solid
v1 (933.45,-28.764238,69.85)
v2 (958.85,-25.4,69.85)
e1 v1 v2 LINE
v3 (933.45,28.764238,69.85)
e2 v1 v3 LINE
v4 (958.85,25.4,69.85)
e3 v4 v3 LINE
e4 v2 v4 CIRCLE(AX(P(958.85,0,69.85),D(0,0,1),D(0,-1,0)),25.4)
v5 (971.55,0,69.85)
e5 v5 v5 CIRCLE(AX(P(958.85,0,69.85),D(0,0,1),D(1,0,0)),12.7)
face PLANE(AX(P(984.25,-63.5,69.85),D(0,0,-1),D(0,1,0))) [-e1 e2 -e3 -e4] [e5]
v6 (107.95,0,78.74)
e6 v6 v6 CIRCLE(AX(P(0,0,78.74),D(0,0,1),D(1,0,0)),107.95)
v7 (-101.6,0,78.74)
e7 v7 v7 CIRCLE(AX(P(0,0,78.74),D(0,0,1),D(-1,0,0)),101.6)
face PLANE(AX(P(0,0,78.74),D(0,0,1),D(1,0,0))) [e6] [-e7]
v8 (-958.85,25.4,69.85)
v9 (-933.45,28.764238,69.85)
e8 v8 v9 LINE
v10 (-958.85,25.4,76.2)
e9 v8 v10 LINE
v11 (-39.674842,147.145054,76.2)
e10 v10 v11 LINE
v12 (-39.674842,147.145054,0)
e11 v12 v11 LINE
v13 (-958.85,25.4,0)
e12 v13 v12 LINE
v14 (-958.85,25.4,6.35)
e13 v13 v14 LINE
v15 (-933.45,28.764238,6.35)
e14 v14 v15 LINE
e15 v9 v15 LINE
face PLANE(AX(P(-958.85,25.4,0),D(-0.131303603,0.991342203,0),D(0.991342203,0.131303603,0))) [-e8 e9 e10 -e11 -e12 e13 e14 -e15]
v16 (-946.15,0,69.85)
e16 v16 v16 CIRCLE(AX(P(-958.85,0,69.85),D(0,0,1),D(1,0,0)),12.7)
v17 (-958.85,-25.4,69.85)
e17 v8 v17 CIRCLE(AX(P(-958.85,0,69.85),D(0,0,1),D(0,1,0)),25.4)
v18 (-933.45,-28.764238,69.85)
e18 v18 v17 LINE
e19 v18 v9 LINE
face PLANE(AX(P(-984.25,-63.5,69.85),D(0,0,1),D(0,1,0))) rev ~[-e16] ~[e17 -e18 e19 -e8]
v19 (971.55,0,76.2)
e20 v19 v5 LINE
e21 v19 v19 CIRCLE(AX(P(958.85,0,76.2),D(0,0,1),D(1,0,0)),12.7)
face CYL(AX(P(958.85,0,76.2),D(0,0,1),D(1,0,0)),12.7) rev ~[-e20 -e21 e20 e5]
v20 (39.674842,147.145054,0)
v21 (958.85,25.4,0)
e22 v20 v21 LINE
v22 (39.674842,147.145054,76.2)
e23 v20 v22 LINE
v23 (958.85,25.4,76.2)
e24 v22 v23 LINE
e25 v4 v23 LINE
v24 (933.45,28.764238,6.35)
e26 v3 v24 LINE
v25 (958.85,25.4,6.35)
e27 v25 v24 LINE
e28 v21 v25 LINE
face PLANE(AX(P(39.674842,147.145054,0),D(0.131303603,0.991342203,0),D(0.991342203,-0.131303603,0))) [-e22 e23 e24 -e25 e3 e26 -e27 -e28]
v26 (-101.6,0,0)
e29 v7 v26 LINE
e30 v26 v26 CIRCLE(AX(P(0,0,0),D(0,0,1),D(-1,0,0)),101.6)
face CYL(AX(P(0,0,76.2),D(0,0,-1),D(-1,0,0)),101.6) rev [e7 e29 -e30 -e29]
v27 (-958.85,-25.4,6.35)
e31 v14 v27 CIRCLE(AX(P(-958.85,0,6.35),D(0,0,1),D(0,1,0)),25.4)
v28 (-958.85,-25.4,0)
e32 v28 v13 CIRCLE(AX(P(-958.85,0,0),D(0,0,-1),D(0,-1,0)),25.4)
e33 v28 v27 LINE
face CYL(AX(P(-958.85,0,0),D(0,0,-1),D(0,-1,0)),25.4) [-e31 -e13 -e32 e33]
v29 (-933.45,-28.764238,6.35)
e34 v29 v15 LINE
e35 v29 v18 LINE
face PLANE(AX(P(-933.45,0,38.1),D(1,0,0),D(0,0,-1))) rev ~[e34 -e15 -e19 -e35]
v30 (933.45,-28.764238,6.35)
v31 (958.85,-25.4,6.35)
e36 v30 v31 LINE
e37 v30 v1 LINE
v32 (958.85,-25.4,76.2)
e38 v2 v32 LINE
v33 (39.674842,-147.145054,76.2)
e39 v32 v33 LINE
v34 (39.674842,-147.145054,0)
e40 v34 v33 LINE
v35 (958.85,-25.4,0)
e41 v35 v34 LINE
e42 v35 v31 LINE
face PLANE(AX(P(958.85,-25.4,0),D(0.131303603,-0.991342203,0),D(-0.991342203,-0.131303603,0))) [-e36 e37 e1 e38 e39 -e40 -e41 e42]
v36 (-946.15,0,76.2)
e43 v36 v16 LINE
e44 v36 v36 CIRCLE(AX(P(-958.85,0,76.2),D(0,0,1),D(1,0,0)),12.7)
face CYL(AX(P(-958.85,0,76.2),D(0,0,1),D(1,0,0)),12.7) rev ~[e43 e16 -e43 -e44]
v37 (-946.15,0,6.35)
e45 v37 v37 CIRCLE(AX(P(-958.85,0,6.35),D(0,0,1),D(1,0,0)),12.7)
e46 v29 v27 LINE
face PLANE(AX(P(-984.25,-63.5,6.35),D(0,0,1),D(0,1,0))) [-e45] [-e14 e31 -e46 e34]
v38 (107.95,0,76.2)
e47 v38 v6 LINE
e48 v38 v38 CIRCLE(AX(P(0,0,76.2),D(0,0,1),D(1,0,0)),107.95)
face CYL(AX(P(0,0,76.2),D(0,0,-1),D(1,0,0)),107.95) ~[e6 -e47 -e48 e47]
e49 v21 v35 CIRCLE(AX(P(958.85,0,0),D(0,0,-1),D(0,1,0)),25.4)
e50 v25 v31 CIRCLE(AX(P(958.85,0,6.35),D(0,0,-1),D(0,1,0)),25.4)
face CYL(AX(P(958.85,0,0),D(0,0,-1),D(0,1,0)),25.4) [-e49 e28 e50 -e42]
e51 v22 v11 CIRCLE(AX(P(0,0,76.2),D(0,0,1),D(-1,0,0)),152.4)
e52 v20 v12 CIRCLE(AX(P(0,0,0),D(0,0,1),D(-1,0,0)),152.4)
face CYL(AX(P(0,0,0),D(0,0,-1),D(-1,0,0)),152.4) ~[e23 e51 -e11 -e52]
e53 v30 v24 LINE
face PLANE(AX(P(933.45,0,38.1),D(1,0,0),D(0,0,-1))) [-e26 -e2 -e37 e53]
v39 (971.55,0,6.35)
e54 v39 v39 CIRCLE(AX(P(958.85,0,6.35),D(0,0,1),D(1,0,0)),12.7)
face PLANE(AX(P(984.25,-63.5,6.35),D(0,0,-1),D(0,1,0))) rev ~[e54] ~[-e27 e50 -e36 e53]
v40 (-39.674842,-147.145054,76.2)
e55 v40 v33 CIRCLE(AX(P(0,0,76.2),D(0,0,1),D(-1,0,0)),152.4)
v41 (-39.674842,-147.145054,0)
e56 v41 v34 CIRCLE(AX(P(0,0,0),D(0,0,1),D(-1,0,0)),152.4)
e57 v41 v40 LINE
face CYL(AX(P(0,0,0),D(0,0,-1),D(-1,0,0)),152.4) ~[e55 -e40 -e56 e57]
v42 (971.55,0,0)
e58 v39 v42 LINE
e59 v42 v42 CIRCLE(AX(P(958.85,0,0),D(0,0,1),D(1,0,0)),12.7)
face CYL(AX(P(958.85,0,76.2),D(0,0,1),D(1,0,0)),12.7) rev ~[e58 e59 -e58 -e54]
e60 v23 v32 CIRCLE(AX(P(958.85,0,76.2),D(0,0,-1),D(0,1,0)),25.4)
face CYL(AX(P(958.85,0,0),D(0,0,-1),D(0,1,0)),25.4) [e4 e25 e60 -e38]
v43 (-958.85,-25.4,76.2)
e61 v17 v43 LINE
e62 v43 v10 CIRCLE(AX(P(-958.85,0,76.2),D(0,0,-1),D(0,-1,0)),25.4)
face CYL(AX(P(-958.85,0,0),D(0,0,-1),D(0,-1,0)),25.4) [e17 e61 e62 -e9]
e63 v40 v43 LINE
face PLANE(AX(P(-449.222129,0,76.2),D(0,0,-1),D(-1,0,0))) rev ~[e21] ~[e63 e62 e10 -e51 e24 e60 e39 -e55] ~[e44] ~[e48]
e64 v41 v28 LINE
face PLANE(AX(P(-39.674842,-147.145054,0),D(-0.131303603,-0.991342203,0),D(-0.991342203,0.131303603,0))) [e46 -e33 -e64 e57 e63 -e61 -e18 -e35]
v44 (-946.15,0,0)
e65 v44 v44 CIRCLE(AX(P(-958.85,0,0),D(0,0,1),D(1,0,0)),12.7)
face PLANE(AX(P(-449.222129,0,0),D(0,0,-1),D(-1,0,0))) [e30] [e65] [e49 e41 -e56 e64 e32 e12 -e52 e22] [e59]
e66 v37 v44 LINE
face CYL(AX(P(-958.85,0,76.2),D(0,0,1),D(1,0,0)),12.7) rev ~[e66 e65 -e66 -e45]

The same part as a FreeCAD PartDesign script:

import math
import FreeCAD as App
import Part
import Sketcher

V = App.Vector
Q = App.Units.Quantity


def add_polygon(sketch, points):
    """Adds a closed chain of lines whose ends are joined by coincident constraints."""
    first, n = sketch.GeometryCount, len(points)
    for a, b in zip(points, points[1:] + points[:1]):
        sketch.addGeometry(Part.LineSegment(App.Vector(*a, 0), App.Vector(*b, 0)), False)
    for i in range(n):
        sketch.addConstraint(Sketcher.Constraint("Coincident", first + i, 2, first + (i + 1) % n, 1))

doc = App.newDocument("Part")
params = doc.addObject("Spreadsheet::Sheet", "Params")
for row, (alias, value) in enumerate([
    ("sketch1_diameter", "12 in"),
    ("sketch1_diameter2", "8 in"),
    ("pad1_length", "3 in"),
    ("sketch2_radius", "1 in"),
    ("sketch2_radius2", "6 in"),
    ("pad2_length", "3 in"),
    ("sketch3_diameter", "1 in"),
    ("sketch4_width", "5 in"),
    ("sketch4_height", "2.5 in"),
    ("pocket2_length", "2 in"),
    ("sketch5_width", "5 in"),
    ("sketch5_height", "2.5 in"),
    ("pocket3_length", "2 in"),
    ("sketch6_diameter", "8 in"),
    ("sketch6_diameter2", "8.5 in"),
    ("pad3_length", "0.1 in"),
], start=1):
    params.set(f"A{row}", alias)
    params.set(f"B{row}", "=" + value)
    params.setAlias(f"B{row}", alias)

body = doc.addObject("PartDesign::Body", "Body")

# Sketch on XY plane
sketch1 = body.newObject("Sketcher::SketchObject", "Sketch")
sketch1.AttachmentSupport = (doc.getObject("XY_Plane"), [""])
sketch1.MapMode = "FlatFace"
sketch1.addGeometry([
    Part.Circle(V(0, 0, 0), V(0, 0, 1), 152.4),
    Part.Circle(V(0, 0, 0), V(0, 0, 1), 101.6),
], False)
sketch1.addConstraint([
    Sketcher.Constraint("Coincident", 0, 3, -1, 1),
    Sketcher.Constraint("Coincident", 1, 3, -1, 1),
    Sketcher.Constraint("Diameter", 0, Q("12 in")),
    Sketcher.Constraint("Diameter", 1, Q("8 in")),
])
sketch1.setExpression("Constraints[2]", "Params.sketch1_diameter")
sketch1.setExpression("Constraints[3]", "Params.sketch1_diameter2")
pad1 = body.newObject("PartDesign::Pad", "Pad")
pad1.Profile = sketch1
pad1.setExpression("Length", "Params.pad1_length")

# Sketch on XY plane
sketch2 = body.newObject("Sketcher::SketchObject", "Sketch001")
sketch2.AttachmentSupport = (doc.getObject("XY_Plane"), [""])
sketch2.MapMode = "FlatFace"
sketch2.addGeometry([
    Part.LineSegment(V(-39.674842, 147.145054, 0), V(-958.85, 25.4, 0)),  # 0
    Part.ArcOfCircle(Part.Circle(V(-958.85, 0, 0), V(0, 0, 1), 25.4), math.radians(90), math.radians(270)),  # 1
    Part.LineSegment(V(-958.85, -25.4, 0), V(-39.674842, -147.145054, 0)),  # 2
    Part.ArcOfCircle(Part.Circle(V(0, 0, 0), V(0, 0, 1), 152.4), math.radians(105.089858), math.radians(254.910142)),  # 3
    Part.LineSegment(V(958.85, 25.4, 0), V(39.674842, 147.145054, 0)),  # 4
    Part.ArcOfCircle(Part.Circle(V(0, 0, 0), V(0, 0, 1), 152.4), math.radians(-74.910142), math.radians(74.910142)),  # 5
    Part.LineSegment(V(39.674842, -147.145054, 0), V(958.85, -25.4, 0)),  # 6
    Part.ArcOfCircle(Part.Circle(V(958.85, 0, 0), V(0, 0, 1), 25.4), math.radians(-90), math.radians(90)),  # 7
], False)
sketch2.addConstraint([
    Sketcher.Constraint("Coincident", 0, 2, 1, 1),
    Sketcher.Constraint("Coincident", 1, 2, 2, 1),
    Sketcher.Constraint("Coincident", 2, 2, 3, 2),
    Sketcher.Constraint("Coincident", 3, 1, 0, 1),
    Sketcher.Constraint("Coincident", 4, 2, 5, 2),
    Sketcher.Constraint("Coincident", 5, 1, 6, 1),
    Sketcher.Constraint("Coincident", 6, 2, 7, 1),
    Sketcher.Constraint("Coincident", 7, 2, 4, 1),
    Sketcher.Constraint("Coincident", 3, 3, -1, 1),
    Sketcher.Constraint("Coincident", 5, 3, -1, 1),
    Sketcher.Constraint("Equal", 3, 5),
    Sketcher.Constraint("Equal", 1, 7),
    Sketcher.Constraint("Symmetric", 1, 3, 7, 3, -1, 1),
    Sketcher.Constraint("Symmetric", 1, 2, 6, 2, -2),
    Sketcher.Constraint("Parallel", 2, 4),
    Sketcher.Constraint("Parallel", 0, 6),
    Sketcher.Constraint("Horizontal", 3, 1, 4, 2),
    Sketcher.Constraint("Horizontal", 2, 2, 5, 1),
    Sketcher.Constraint("Vertical", 1, 3, 0, 2),
    Sketcher.Constraint("Vertical", 0, 2, 1, 2),
    Sketcher.Constraint("Radius", 1, Q("1 in")),
    Sketcher.Constraint("Radius", 3, Q("6 in")),
    Sketcher.Constraint("DistanceX", 1, 3, 7, 3, Q("75.5 in")),
    Sketcher.Constraint("Distance", 0, Q("927.202691 mm")),
])
sketch2.setExpression("Constraints[20]", "Params.sketch2_radius")
sketch2.setExpression("Constraints[21]", "Params.sketch2_radius2")
pad2 = body.newObject("PartDesign::Pad", "Pad001")
pad2.Profile = sketch2
pad2.setExpression("Length", "Params.pad2_length")

# Sketch on XY plane
sketch3 = body.newObject("Sketcher::SketchObject", "Sketch002")
sketch3.AttachmentSupport = (doc.getObject("XY_Plane"), [""])
sketch3.MapMode = "FlatFace"
sketch3.AttachmentOffset = App.Placement(V(0, 0, 3 * 25.4), App.Rotation())
sketch3.addGeometry([
    Part.Circle(V(-958.85, 0, 0), V(0, 0, 1), 12.7),
    Part.Circle(V(958.85, 0, 0), V(0, 0, 1), 12.7),
], False)
sketch3.addConstraint([
    Sketcher.Constraint("Equal", 0, 1),
    Sketcher.Constraint("Symmetric", 0, 3, 1, 3, -1, 1),
    Sketcher.Constraint("PointOnObject", 0, 3, -1),
    Sketcher.Constraint("Diameter", 0, Q("1 in")),
    Sketcher.Constraint("DistanceX", 0, 3, 1, 3, Q("75.5 in")),
])
sketch3.setExpression("Constraints[3]", "Params.sketch3_diameter")
pocket1 = body.newObject("PartDesign::Pocket", "Pocket")
pocket1.Profile = sketch3
pocket1.Type = "ThroughAll"

# Sketch on YZ plane
sketch4 = body.newObject("Sketcher::SketchObject", "Sketch003")
sketch4.AttachmentSupport = (doc.getObject("YZ_Plane"), [""])
sketch4.MapMode = "FlatFace"
sketch4.AttachmentOffset = App.Placement(V(0, 0, 38.75 * 25.4), App.Rotation())
add_polygon(sketch4, [(63.5, 69.85), (-63.5, 69.85), (-63.5, 6.35), (63.5, 6.35)])  # lines 0-3
sketch4.addConstraint([
    Sketcher.Constraint("Horizontal", 0),
    Sketcher.Constraint("Vertical", 1),
    Sketcher.Constraint("Horizontal", 2),
    Sketcher.Constraint("Vertical", 3),
    Sketcher.Constraint("DistanceX", 0, 2, 0, 1, Q("5 in")),
    Sketcher.Constraint("DistanceY", 1, 2, 1, 1, Q("2.5 in")),
    Sketcher.Constraint("DistanceX", 0, 2, -1, 1, Q("2.5 in")),
    Sketcher.Constraint("DistanceY", -1, 1, 0, 2, Q("2.75 in")),
])
sketch4.setExpression("Constraints[8]", "Params.sketch4_width")
sketch4.setExpression("Constraints[9]", "Params.sketch4_height")
pocket2 = body.newObject("PartDesign::Pocket", "Pocket001")
pocket2.Profile = sketch4
pocket2.setExpression("Length", "Params.pocket2_length")

# Sketch on YZ plane
sketch5 = body.newObject("Sketcher::SketchObject", "Sketch004")
sketch5.AttachmentSupport = (doc.getObject("YZ_Plane"), [""])
sketch5.MapMode = "FlatFace"
sketch5.AttachmentOffset = App.Placement(V(0, 0, -38.75 * 25.4), App.Rotation())
add_polygon(sketch5, [(63.5, 69.85), (-63.5, 69.85), (-63.5, 6.35), (63.5, 6.35)])  # lines 0-3
sketch5.addConstraint([
    Sketcher.Constraint("Horizontal", 0),
    Sketcher.Constraint("Vertical", 1),
    Sketcher.Constraint("Horizontal", 2),
    Sketcher.Constraint("Vertical", 3),
    Sketcher.Constraint("DistanceX", 0, 2, 0, 1, Q("5 in")),
    Sketcher.Constraint("DistanceY", 1, 2, 1, 1, Q("2.5 in")),
    Sketcher.Constraint("DistanceX", 0, 2, -1, 1, Q("2.5 in")),
    Sketcher.Constraint("DistanceY", -1, 1, 0, 2, Q("2.75 in")),
])
sketch5.setExpression("Constraints[8]", "Params.sketch5_width")
sketch5.setExpression("Constraints[9]", "Params.sketch5_height")
pocket3 = body.newObject("PartDesign::Pocket", "Pocket002")
pocket3.Profile = sketch5
pocket3.setExpression("Length", "Params.pocket3_length")
pocket3.Reversed = True

# Sketch on XY plane
sketch6 = body.newObject("Sketcher::SketchObject", "Sketch005")
sketch6.AttachmentSupport = (doc.getObject("XY_Plane"), [""])
sketch6.MapMode = "FlatFace"
sketch6.AttachmentOffset = App.Placement(V(0, 0, 3 * 25.4), App.Rotation())
sketch6.addGeometry([
    Part.Circle(V(0, 0, 0), V(0, 0, 1), 107.95),
    Part.Circle(V(0, 0, 0), V(0, 0, 1), 101.6),
], False)
sketch6.addConstraint([
    Sketcher.Constraint("Coincident", 0, 3, -1, 1),
    Sketcher.Constraint("Coincident", 1, 3, -1, 1),
    Sketcher.Constraint("Diameter", 1, Q("8 in")),
    Sketcher.Constraint("Diameter", 0, Q("8.5 in")),
])
sketch6.setExpression("Constraints[2]", "Params.sketch6_diameter")
sketch6.setExpression("Constraints[3]", "Params.sketch6_diameter2")
pad3 = body.newObject("PartDesign::Pad", "Pad002")
pad3.Profile = sketch6
pad3.setExpression("Length", "Params.pad3_length")

doc.recompute()
